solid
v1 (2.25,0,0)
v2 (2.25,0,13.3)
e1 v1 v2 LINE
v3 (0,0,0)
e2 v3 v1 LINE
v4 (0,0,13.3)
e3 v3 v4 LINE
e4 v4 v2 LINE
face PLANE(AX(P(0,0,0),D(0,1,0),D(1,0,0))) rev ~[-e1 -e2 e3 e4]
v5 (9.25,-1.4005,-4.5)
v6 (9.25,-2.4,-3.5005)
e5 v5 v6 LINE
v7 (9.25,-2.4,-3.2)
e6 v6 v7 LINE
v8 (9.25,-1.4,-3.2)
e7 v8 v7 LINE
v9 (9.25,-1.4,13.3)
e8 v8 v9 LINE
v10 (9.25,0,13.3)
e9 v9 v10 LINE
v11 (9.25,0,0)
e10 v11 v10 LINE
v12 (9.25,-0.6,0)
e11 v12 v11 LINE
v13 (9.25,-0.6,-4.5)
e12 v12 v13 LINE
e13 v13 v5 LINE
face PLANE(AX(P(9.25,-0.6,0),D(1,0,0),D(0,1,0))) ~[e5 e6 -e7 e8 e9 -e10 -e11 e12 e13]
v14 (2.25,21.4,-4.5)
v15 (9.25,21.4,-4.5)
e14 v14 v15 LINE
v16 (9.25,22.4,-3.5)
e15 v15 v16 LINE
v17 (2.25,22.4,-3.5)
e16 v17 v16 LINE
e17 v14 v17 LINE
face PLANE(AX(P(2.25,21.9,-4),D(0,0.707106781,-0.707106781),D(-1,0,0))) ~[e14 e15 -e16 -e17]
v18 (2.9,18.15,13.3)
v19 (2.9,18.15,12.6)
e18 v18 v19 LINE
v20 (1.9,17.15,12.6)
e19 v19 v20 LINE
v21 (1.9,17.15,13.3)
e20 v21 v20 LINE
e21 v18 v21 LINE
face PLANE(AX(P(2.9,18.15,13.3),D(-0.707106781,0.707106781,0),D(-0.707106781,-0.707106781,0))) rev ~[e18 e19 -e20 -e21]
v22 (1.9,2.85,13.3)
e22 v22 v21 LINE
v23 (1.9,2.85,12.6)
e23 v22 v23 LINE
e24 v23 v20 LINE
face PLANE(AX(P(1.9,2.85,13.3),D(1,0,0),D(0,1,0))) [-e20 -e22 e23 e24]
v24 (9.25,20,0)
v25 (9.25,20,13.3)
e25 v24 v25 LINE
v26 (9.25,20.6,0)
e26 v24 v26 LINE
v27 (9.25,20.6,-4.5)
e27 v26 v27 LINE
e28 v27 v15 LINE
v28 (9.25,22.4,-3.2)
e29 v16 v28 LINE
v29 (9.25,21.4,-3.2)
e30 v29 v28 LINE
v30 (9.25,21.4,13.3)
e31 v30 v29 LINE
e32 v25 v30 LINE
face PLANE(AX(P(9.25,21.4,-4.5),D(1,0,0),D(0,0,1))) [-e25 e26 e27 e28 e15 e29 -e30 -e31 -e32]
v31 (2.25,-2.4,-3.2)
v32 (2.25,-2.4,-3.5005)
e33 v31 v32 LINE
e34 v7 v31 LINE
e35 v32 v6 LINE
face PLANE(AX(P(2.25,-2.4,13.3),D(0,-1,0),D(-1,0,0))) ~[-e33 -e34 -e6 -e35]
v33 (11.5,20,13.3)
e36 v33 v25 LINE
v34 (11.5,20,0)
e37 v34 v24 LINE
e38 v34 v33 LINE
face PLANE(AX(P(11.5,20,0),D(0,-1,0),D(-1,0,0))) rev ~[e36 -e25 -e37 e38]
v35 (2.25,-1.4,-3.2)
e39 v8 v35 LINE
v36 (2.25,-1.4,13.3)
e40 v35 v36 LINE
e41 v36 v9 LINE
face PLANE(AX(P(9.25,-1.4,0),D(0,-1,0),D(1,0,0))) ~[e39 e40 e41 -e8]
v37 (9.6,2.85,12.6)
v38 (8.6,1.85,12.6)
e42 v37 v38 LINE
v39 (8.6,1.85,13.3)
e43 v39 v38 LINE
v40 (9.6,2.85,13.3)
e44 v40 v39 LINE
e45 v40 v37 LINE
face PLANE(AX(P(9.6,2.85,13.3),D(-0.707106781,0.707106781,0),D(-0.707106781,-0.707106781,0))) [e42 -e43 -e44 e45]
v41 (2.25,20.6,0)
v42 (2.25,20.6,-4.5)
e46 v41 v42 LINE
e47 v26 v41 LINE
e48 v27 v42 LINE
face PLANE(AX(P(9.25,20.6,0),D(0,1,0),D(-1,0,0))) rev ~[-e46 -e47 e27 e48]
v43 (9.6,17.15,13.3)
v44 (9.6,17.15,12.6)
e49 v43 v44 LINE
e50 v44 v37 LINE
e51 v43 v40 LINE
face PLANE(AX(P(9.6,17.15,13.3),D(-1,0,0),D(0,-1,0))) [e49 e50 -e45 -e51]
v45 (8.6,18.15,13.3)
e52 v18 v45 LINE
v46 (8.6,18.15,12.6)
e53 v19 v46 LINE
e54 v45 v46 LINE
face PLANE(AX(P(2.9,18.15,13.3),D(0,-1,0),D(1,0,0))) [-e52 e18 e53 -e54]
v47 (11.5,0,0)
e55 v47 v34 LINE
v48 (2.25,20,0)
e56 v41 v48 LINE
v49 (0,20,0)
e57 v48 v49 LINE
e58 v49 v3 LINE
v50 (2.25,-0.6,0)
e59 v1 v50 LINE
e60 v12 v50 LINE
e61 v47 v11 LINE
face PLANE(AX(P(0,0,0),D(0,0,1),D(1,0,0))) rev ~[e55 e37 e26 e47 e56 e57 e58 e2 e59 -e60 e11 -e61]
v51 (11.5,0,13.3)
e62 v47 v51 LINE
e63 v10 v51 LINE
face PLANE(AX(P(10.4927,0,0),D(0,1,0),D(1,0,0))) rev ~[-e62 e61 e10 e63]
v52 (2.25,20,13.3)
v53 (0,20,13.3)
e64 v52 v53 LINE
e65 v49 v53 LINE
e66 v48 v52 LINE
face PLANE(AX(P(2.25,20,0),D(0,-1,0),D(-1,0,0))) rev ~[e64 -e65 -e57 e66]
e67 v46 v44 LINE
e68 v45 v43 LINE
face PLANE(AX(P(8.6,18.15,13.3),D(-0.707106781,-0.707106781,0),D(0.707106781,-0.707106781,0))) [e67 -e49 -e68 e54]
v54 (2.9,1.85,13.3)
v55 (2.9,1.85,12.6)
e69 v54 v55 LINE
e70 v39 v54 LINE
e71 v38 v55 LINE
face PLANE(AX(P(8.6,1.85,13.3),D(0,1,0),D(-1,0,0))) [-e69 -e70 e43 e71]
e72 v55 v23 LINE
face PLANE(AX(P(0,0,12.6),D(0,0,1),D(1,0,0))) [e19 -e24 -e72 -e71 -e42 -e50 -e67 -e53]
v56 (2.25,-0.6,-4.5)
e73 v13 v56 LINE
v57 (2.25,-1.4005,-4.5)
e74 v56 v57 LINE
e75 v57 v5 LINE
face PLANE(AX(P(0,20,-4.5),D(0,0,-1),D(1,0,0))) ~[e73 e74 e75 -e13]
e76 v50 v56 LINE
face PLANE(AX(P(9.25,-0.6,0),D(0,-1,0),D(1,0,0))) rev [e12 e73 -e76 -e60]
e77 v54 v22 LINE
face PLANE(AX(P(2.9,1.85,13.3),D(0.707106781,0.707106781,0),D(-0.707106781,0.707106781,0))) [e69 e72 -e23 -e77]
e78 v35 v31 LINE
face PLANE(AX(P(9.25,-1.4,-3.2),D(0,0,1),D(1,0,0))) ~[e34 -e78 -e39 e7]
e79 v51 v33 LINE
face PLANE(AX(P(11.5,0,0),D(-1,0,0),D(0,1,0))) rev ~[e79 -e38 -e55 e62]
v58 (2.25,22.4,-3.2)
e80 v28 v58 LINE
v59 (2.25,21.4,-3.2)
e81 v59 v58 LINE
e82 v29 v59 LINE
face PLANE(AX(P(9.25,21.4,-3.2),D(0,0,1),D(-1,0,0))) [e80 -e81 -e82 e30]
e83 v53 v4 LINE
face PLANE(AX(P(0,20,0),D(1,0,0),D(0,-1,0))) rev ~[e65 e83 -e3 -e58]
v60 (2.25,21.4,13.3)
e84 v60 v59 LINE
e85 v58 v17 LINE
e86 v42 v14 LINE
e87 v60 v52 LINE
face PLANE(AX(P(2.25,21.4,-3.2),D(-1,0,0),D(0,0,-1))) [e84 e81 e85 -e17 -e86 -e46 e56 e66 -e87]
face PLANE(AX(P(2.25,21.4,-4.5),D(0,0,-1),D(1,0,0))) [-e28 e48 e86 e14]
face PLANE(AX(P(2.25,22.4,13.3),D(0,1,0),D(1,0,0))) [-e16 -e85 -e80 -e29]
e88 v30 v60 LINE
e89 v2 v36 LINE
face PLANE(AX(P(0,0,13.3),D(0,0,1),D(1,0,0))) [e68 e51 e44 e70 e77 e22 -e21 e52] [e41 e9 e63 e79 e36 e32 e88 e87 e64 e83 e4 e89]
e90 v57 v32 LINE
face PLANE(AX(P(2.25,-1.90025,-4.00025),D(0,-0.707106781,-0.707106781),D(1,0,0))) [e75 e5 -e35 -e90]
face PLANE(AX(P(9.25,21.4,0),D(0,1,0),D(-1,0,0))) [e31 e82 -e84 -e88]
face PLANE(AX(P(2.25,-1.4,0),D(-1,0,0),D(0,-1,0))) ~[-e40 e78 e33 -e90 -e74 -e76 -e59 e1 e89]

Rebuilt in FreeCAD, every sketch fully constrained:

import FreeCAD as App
import Part
import Sketcher
from FreeCAD import Vector


def edges_at(feature, points):
    """Names of the edges that pass closest to the given points."""
    edges = feature.Shape.Edges
    near = lambda p: min(range(len(edges)), key=lambda i: edges[i].distToShape(Part.Vertex(*p))[0])
    return sorted({f"Edge{near(p) + 1}" for p in points})

doc = App.newDocument("Part")
body = doc.addObject("PartDesign::Body", "Body")

# Sketch on XY plane
sketch1 = doc.addObject("Sketcher::SketchObject", "Sketch")
body.addObject(sketch1)
sketch1.AttachmentSupport = (doc.XY_Plane, [""])
sketch1.MapMode = "FlatFace"
sketch1.addGeometry(Part.LineSegment(Vector(0, 20, 0), Vector(0, 0, 0)), False)
sketch1.addGeometry(Part.LineSegment(Vector(0, 0, 0), Vector(2.25, 0, 0)), False)
sketch1.addGeometry(Part.LineSegment(Vector(2.25, 0, 0), Vector(2.25, -1.4, 0)), False)
sketch1.addGeometry(Part.LineSegment(Vector(2.25, -1.4, 0), Vector(9.25, -1.4, 0)), False)
sketch1.addGeometry(Part.LineSegment(Vector(9.25, -1.4, 0), Vector(9.25, 0, 0)), False)
sketch1.addGeometry(Part.LineSegment(Vector(9.25, 0, 0), Vector(11.5, 0, 0)), False)
sketch1.addGeometry(Part.LineSegment(Vector(11.5, 0, 0), Vector(11.5, 20, 0)), False)
sketch1.addGeometry(Part.LineSegment(Vector(11.5, 20, 0), Vector(9.25, 20, 0)), False)
sketch1.addGeometry(Part.LineSegment(Vector(9.25, 20, 0), Vector(9.25, 21.4, 0)), False)
sketch1.addGeometry(Part.LineSegment(Vector(9.25, 21.4, 0), Vector(2.25, 21.4, 0)), False)
sketch1.addGeometry(Part.LineSegment(Vector(2.25, 21.4, 0), Vector(2.25, 20, 0)), False)
sketch1.addGeometry(Part.LineSegment(Vector(2.25, 20, 0), Vector(0, 20, 0)), False)
sketch1.addConstraint(Sketcher.Constraint("Coincident", 0, 2, 1, 1))
sketch1.addConstraint(Sketcher.Constraint("Coincident", 1, 2, 2, 1))
sketch1.addConstraint(Sketcher.Constraint("Coincident", 2, 2, 3, 1))
sketch1.addConstraint(Sketcher.Constraint("Coincident", 3, 2, 4, 1))
sketch1.addConstraint(Sketcher.Constraint("Coincident", 4, 2, 5, 1))
sketch1.addConstraint(Sketcher.Constraint("Coincident", 5, 2, 6, 1))
sketch1.addConstraint(Sketcher.Constraint("Coincident", 6, 2, 7, 1))
sketch1.addConstraint(Sketcher.Constraint("Coincident", 7, 2, 8, 1))
sketch1.addConstraint(Sketcher.Constraint("Coincident", 8, 2, 9, 1))
sketch1.addConstraint(Sketcher.Constraint("Coincident", 9, 2, 10, 1))
sketch1.addConstraint(Sketcher.Constraint("Coincident", 10, 2, 11, 1))
sketch1.addConstraint(Sketcher.Constraint("Coincident", 11, 2, 0, 1))
sketch1.addConstraint(Sketcher.Constraint("Vertical", 0))
sketch1.addConstraint(Sketcher.Constraint("Horizontal", 1))
sketch1.addConstraint(Sketcher.Constraint("Vertical", 2))
sketch1.addConstraint(Sketcher.Constraint("Horizontal", 3))
sketch1.addConstraint(Sketcher.Constraint("Vertical", 4))
sketch1.addConstraint(Sketcher.Constraint("Horizontal", 5))
sketch1.addConstraint(Sketcher.Constraint("Vertical", 6))
sketch1.addConstraint(Sketcher.Constraint("Horizontal", 7))
sketch1.addConstraint(Sketcher.Constraint("Vertical", 8))
sketch1.addConstraint(Sketcher.Constraint("Horizontal", 9))
sketch1.addConstraint(Sketcher.Constraint("Vertical", 10))
sketch1.addConstraint(Sketcher.Constraint("Horizontal", 11))
sketch1.addConstraint(Sketcher.Constraint("Coincident", 0, 2, -1, 1))
sketch1.addConstraint(Sketcher.Constraint("PointOnObject", 4, 2, -1))
sketch1.addConstraint(Sketcher.Constraint("Horizontal", 7, 2, 10, 2))
sketch1.addConstraint(Sketcher.Constraint("Vertical", 4, 2, 7, 2))
sketch1.addConstraint(Sketcher.Constraint("Vertical", 2, 2, 9, 2))
sketch1.addConstraint(Sketcher.Constraint("Equal", 1, 5))
sketch1.addConstraint(Sketcher.Constraint("Equal", 4, 8))
sketch1.addConstraint(Sketcher.Constraint("DistanceX", 3, 1, 3, 2, 7.0))
sketch1.addConstraint(Sketcher.Constraint("DistanceY", 0, 2, 0, 1, 20.0))
sketch1.addConstraint(Sketcher.Constraint("DistanceY", 2, 2, 2, 1, 1.4))
sketch1.addConstraint(Sketcher.Constraint("DistanceX", 1, 1, 1, 2, 2.25))
pad1 = doc.addObject("PartDesign::Pad", "Pad")
body.addObject(pad1)
pad1.Profile = sketch1
pad1.Length = 13.3

# Sketch on XY plane
sketch2 = doc.addObject("Sketcher::SketchObject", "Sketch001")
body.addObject(sketch2)
sketch2.AttachmentSupport = (doc.XY_Plane, [""])
sketch2.MapMode = "FlatFace"
sketch2.AttachmentOffset = App.Placement(Vector(0, 0, 13.3), App.Rotation())
sketch2.addGeometry(Part.LineSegment(Vector(8.6, 18.15, 0), Vector(2.9, 18.15, 0)), False)
sketch2.addGeometry(Part.LineSegment(Vector(2.9, 18.15, 0), Vector(1.9, 17.15, 0)), False)
sketch2.addGeometry(Part.LineSegment(Vector(1.9, 17.15, 0), Vector(1.9, 2.85, 0)), False)
sketch2.addGeometry(Part.LineSegment(Vector(1.9, 2.85, 0), Vector(2.9, 1.85, 0)), False)
sketch2.addGeometry(Part.LineSegment(Vector(2.9, 1.85, 0), Vector(8.6, 1.85, 0)), False)
sketch2.addGeometry(Part.LineSegment(Vector(8.6, 1.85, 0), Vector(9.6, 2.85, 0)), False)
sketch2.addGeometry(Part.LineSegment(Vector(9.6, 2.85, 0), Vector(9.6, 17.15, 0)), False)
sketch2.addGeometry(Part.LineSegment(Vector(9.6, 17.15, 0), Vector(8.6, 18.15, 0)), False)
sketch2.addConstraint(Sketcher.Constraint("Coincident", 0, 2, 1, 1))
sketch2.addConstraint(Sketcher.Constraint("Coincident", 1, 2, 2, 1))
sketch2.addConstraint(Sketcher.Constraint("Coincident", 2, 2, 3, 1))
sketch2.addConstraint(Sketcher.Constraint("Coincident", 3, 2, 4, 1))
sketch2.addConstraint(Sketcher.Constraint("Coincident", 4, 2, 5, 1))
sketch2.addConstraint(Sketcher.Constraint("Coincident", 5, 2, 6, 1))
sketch2.addConstraint(Sketcher.Constraint("Coincident", 6, 2, 7, 1))
sketch2.addConstraint(Sketcher.Constraint("Coincident", 7, 2, 0, 1))
sketch2.addConstraint(Sketcher.Constraint("Horizontal", 0))
sketch2.addConstraint(Sketcher.Constraint("Vertical", 2))
sketch2.addConstraint(Sketcher.Constraint("Horizontal", 4))
sketch2.addConstraint(Sketcher.Constraint("Vertical", 6))
sketch2.addConstraint(Sketcher.Constraint("Perpendicular", 1, 3))
sketch2.addConstraint(Sketcher.Constraint("Perpendicular", 3, 5))
sketch2.addConstraint(Sketcher.Constraint("Perpendicular", 5, 7))
sketch2.addConstraint(Sketcher.Constraint("Horizontal", 2, 2, 5, 2))
sketch2.addConstraint(Sketcher.Constraint("Horizontal", 1, 2, 6, 2))
sketch2.addConstraint(Sketcher.Constraint("Vertical", 0, 2, 3, 2))
sketch2.addConstraint(Sketcher.Constraint("Vertical", 4, 2, 7, 2))
sketch2.addConstraint(Sketcher.Constraint("DistanceX", 1, 2, 0, 2, 1.0))
sketch2.addConstraint(Sketcher.Constraint("DistanceX", -1, 1, 1, 2, 1.9))
sketch2.addConstraint(Sketcher.Constraint("DistanceX", 0, 2, 0, 1, 5.7))
sketch2.addConstraint(Sketcher.Constraint("DistanceY", 2, 2, 2, 1, 14.3))
sketch2.addConstraint(Sketcher.Constraint("DistanceY", -1, 1, 0, 2, 18.15))
pocket1 = doc.addObject("PartDesign::Pocket", "Pocket")
body.addObject(pocket1)
pocket1.Profile = sketch2
pocket1.Length = 0.7

# Sketch on XY plane
sketch3 = doc.addObject("Sketcher::SketchObject", "Sketch002")
body.addObject(sketch3)
sketch3.AttachmentSupport = (doc.XY_Plane, [""])
sketch3.MapMode = "FlatFace"
sketch3.addGeometry(Part.LineSegment(Vector(2.25, 20.6, 0), Vector(2.25, 21.4, 0)), False)
sketch3.addGeometry(Part.LineSegment(Vector(2.25, 21.4, 0), Vector(9.25, 21.4, 0)), False)
sketch3.addGeometry(Part.LineSegment(Vector(9.25, 21.4, 0), Vector(9.25, 20.6, 0)), False)
sketch3.addGeometry(Part.LineSegment(Vector(9.25, 20.6, 0), Vector(2.25, 20.6, 0)), False)
sketch3.addConstraint(Sketcher.Constraint("Coincident", 0, 2, 1, 1))
sketch3.addConstraint(Sketcher.Constraint("Coincident", 1, 2, 2, 1))
sketch3.addConstraint(Sketcher.Constraint("Coincident", 2, 2, 3, 1))
sketch3.addConstraint(Sketcher.Constraint("Coincident", 3, 2, 0, 1))
sketch3.addConstraint(Sketcher.Constraint("Vertical", 0))
sketch3.addConstraint(Sketcher.Constraint("Horizontal", 1))
sketch3.addConstraint(Sketcher.Constraint("Vertical", 2))
sketch3.addConstraint(Sketcher.Constraint("Horizontal", 3))
sketch3.addConstraint(Sketcher.Constraint("DistanceY", 0, 1, 0, 2, 0.8))
sketch3.addConstraint(Sketcher.Constraint("DistanceX", 1, 1, 1, 2, 7.0))
sketch3.addConstraint(Sketcher.Constraint("DistanceY", -1, 1, 0, 2, 21.4))
sketch3.addConstraint(Sketcher.Constraint("DistanceX", -1, 1, 0, 2, 2.25))
pad2 = doc.addObject("PartDesign::Pad", "Pad001")
body.addObject(pad2)
pad2.Profile = sketch3
pad2.Length = 4.5
pad2.Reversed = True

# Sketch on XZ plane
sketch4 = doc.addObject("Sketcher::SketchObject", "Sketch003")
body.addObject(sketch4)
sketch4.AttachmentSupport = (doc.XZ_Plane, [""])
sketch4.MapMode = "FlatFace"
sketch4.AttachmentOffset = App.Placement(Vector(0, 0, -21.4), App.Rotation())
sketch4.addGeometry(Part.LineSegment(Vector(9.25, -3.2, 0), Vector(9.25, -4.5, 0)), False)
sketch4.addGeometry(Part.LineSegment(Vector(9.25, -4.5, 0), Vector(2.25, -4.5, 0)), False)
sketch4.addGeometry(Part.LineSegment(Vector(2.25, -4.5, 0), Vector(2.25, -3.2, 0)), False)
sketch4.addGeometry(Part.LineSegment(Vector(2.25, -3.2, 0), Vector(9.25, -3.2, 0)), False)
sketch4.addConstraint(Sketcher.Constraint("Coincident", 0, 2, 1, 1))
sketch4.addConstraint(Sketcher.Constraint("Coincident", 1, 2, 2, 1))
sketch4.addConstraint(Sketcher.Constraint("Coincident", 2, 2, 3, 1))
sketch4.addConstraint(Sketcher.Constraint("Coincident", 3, 2, 0, 1))
sketch4.addConstraint(Sketcher.Constraint("Vertical", 0))
sketch4.addConstraint(Sketcher.Constraint("Horizontal", 1))
sketch4.addConstraint(Sketcher.Constraint("Vertical", 2))
sketch4.addConstraint(Sketcher.Constraint("Horizontal", 3))
sketch4.addConstraint(Sketcher.Constraint("DistanceY", 0, 2, 0, 1, 1.3))
sketch4.addConstraint(Sketcher.Constraint("DistanceX", 1, 2, 1, 1, 7.0))
sketch4.addConstraint(Sketcher.Constraint("DistanceY", 0, 2, -1, 1, 4.5))
sketch4.addConstraint(Sketcher.Constraint("DistanceX", -1, 1, 0, 2, 9.25))
pad3 = doc.addObject("PartDesign::Pad", "Pad002")
body.addObject(pad3)
pad3.Profile = sketch4
pad3.Length = 1
pad3.Reversed = True
doc.recompute()

chamfer = doc.addObject("PartDesign::Chamfer", "Chamfer")
body.addObject(chamfer)
chamfer.Base = (pad3, edges_at(pad3, [(5.75, 22.4, -4.5)]))
chamfer.Size = 1
doc.recompute()

datumplane = doc.addObject("PartDesign::Plane", "DatumPlane")
body.addObject(datumplane)
datumplane.AttachmentSupport = (doc.XZ_Plane, [""])
datumplane.MapMode = "FlatFace"
datumplane.AttachmentOffset = App.Placement(Vector(0, 0, -10), App.Rotation())
mirrored = doc.addObject("PartDesign::Mirrored", "Mirrored")
body.addObject(mirrored)
mirrored.Originals = [pad3, chamfer, pad2]
mirrored.MirrorPlane = (datumplane, [""])
body.Tip = mirrored

doc.recompute()
